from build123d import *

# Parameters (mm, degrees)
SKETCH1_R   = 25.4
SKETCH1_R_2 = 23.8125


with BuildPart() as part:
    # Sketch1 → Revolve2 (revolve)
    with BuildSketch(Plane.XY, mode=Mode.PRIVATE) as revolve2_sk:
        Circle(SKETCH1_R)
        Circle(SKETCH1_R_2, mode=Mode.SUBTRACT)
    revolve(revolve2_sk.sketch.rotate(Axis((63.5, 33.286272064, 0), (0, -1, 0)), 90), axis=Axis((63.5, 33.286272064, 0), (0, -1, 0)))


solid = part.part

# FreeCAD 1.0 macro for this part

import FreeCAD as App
import Part
import Sketcher
Q = App.Units.Quantity

doc = App.newDocument("Part")
body = doc.addObject("PartDesign::Body", "Body")

# Sketch on XY plane
sketch1 = doc.addObject("Sketcher::SketchObject", "Sketch")
body.addObject(sketch1)
sketch1.AttachmentSupport = (doc.XY_Plane, [""])
sketch1.MapMode = "FlatFace"
sketch1.addGeometry([
    Part.Circle(App.Vector(0, 0, 0), App.Vector(0, 0, 1), 25),
    Part.Circle(App.Vector(0, 0, 0), App.Vector(0, 0, 1), 24),
], False)
sketch1.addGeometry(Part.LineSegment(App.Vector(64, 0, 0), App.Vector(64, -10, 0)), True)  # axis
sketch1.addConstraint([
    Sketcher.Constraint("Vertical", 2),
    Sketcher.Constraint("Coincident", 0, 3, -1, 1),
    Sketcher.Constraint("Coincident", 1, 3, -1, 1),
    Sketcher.Constraint("PointOnObject", 2, 1, -1),
    Sketcher.Constraint("Diameter", 0, Q("2 in")),
    Sketcher.Constraint("Diameter", 1, Q("1.875 in")),
    Sketcher.Constraint("DistanceX", -1, 1, 2, 1, Q("2.5 in")),
    Sketcher.Constraint("DistanceY", 2, 2, 2, 1, 10.0),
])
revolution = doc.addObject("PartDesign::Revolution", "Revolution")
body.addObject(revolution)
revolution.Profile = sketch1
revolution.ReferenceAxis = (sketch1, ["Axis0"])
revolution.Angle = 360

doc.recompute()
